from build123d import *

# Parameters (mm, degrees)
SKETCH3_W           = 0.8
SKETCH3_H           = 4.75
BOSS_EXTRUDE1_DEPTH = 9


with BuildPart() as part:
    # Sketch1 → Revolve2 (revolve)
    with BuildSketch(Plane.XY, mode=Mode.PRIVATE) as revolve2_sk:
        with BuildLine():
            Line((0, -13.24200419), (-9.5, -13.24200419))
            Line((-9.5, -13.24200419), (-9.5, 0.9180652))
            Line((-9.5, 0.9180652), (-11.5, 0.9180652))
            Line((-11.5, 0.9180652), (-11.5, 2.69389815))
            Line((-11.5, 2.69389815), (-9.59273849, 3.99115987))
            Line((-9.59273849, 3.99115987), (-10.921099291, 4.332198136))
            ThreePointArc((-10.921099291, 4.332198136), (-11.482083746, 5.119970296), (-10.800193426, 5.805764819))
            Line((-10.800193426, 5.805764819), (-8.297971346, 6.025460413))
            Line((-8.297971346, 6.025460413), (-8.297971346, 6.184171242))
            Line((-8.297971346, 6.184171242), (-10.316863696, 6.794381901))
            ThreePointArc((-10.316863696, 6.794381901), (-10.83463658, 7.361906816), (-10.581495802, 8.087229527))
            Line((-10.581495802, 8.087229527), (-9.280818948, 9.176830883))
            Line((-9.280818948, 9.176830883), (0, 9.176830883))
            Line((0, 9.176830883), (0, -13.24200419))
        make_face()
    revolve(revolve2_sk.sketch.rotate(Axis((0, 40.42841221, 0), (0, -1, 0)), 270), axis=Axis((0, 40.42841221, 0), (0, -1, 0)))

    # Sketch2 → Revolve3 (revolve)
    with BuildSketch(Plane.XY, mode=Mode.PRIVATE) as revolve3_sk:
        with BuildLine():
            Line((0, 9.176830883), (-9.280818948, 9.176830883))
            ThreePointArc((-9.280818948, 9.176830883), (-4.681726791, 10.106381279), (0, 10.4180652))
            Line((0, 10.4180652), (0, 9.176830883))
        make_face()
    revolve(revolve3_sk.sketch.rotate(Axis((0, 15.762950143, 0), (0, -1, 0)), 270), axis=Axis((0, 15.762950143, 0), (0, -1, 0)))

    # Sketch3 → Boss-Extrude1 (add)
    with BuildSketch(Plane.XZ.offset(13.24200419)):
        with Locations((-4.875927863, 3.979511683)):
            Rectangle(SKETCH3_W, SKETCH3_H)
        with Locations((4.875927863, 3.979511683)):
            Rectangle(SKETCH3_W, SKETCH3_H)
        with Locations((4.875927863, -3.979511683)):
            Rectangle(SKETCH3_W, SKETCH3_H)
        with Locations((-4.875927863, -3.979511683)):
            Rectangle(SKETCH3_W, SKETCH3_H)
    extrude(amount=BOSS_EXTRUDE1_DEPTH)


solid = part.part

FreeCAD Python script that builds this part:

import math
import FreeCAD as App
import Part
import Sketcher
Q = App.Units.Quantity

doc = App.newDocument("Part")
body = doc.addObject("PartDesign::Body", "Body")

sketch1 = doc.addObject("Sketcher::SketchObject", "Sketch")
body.addObject(sketch1)
sketch1.AttachmentSupport = (doc.XY_Plane, [""])
sketch1.MapMode = "FlatFace"
sketch1.addGeometry([
    Part.LineSegment(App.Vector(-9.5, -13.242004, 0), App.Vector(0, -13.242004, 0)),
    Part.LineSegment(App.Vector(0, -13.242004, 0), App.Vector(0, 9.176831, 0)),
    Part.LineSegment(App.Vector(0, 9.176831, 0), App.Vector(-9.280819, 9.176831, 0)),
    Part.LineSegment(App.Vector(-9.280819, 9.176831, 0), App.Vector(-10.581496, 8.08723, 0)),
    Part.ArcOfCircle(Part.Circle(App.Vector(-10.099871, 7.512305, 0), App.Vector(0, 0, 1), 0.75), math.radians(129.953539), math.radians(253.182546)),
    Part.LineSegment(App.Vector(-10.316864, 6.794382, 0), App.Vector(-8.297971, 6.184171, 0)),
    Part.LineSegment(App.Vector(-8.297971, 6.184171, 0), App.Vector(-8.297971, 6.02546, 0)),
    Part.LineSegment(App.Vector(-8.297971, 6.02546, 0), App.Vector(-10.800193, 5.805765, 0)),
    Part.ArcOfCircle(Part.Circle(App.Vector(-10.734596, 5.058639, 0), App.Vector(0, 0, 1), 0.75), math.radians(95.017714), math.radians(255.601085)),
    Part.LineSegment(App.Vector(-10.921099, 4.332198, 0), App.Vector(-9.592738, 3.99116, 0)),
    Part.LineSegment(App.Vector(-9.592738, 3.99116, 0), App.Vector(-11.5, 2.693898, 0)),
    Part.LineSegment(App.Vector(-11.5, 2.693898, 0), App.Vector(-11.5, 0.918065, 0)),
    Part.LineSegment(App.Vector(-11.5, 0.918065, 0), App.Vector(-9.5, 0.918065, 0)),
    Part.LineSegment(App.Vector(-9.5, 0.918065, 0), App.Vector(-9.5, -13.242004, 0)),
], False)
sketch1.addConstraint([
    Sketcher.Constraint("Coincident", 0, 2, 1, 1),
    Sketcher.Constraint("Coincident", 1, 2, 2, 1),
    Sketcher.Constraint("Coincident", 2, 2, 3, 1),
    Sketcher.Constraint("Tangent", 3, 2, 4, 1),
    Sketcher.Constraint("Tangent", 4, 2, 5, 1),
    Sketcher.Constraint("Coincident", 5, 2, 6, 1),
    Sketcher.Constraint("Coincident", 6, 2, 7, 1),
    Sketcher.Constraint("Tangent", 7, 2, 8, 1),
    Sketcher.Constraint("Tangent", 8, 2, 9, 1),
    Sketcher.Constraint("Coincident", 9, 2, 10, 1),
    Sketcher.Constraint("Coincident", 10, 2, 11, 1),
    Sketcher.Constraint("Coincident", 11, 2, 12, 1),
    Sketcher.Constraint("Coincident", 12, 2, 13, 1),
    Sketcher.Constraint("Coincident", 13, 2, 0, 1),
    Sketcher.Constraint("Horizontal", 0),
    Sketcher.Constraint("Vertical", 1),
    Sketcher.Constraint("Horizontal", 2),
    Sketcher.Constraint("Vertical", 6),
    Sketcher.Constraint("Vertical", 11),
    Sketcher.Constraint("Horizontal", 12),
    Sketcher.Constraint("Vertical", 13),
    Sketcher.Constraint("Equal", 4, 8),
    Sketcher.Constraint("PointOnObject", 0, 2, -2),
    Sketcher.Constraint("DistanceX", 12, 1, 12, 2, Q("2 mm")),
    Sketcher.Constraint("Radius", 4, Q("0.75 mm")),
    Sketcher.Constraint("DistanceX", 0, 1, 0, 2, Q("9.5 mm")),
    Sketcher.Constraint("DistanceX", 2, 2, 2, 1, Q("9.280819 mm")),
    Sketcher.Constraint("DistanceY", 6, 2, 6, 1, Q("0.158711 mm")),
    Sketcher.Constraint("DistanceY", 13, 2, 13, 1, Q("14.160069 mm")),
    Sketcher.Constraint("DistanceX", 8, 2, -1, 1, Q("10.921099 mm")),
    Sketcher.Constraint("DistanceY", -1, 1, 8, 2, Q("4.332198 mm")),
    Sketcher.Constraint("DistanceY", -1, 1, 10, 2, Q("2.693898 mm")),
    Sketcher.Constraint("DistanceY", 3, 2, 2, 2, Q("1.089601 mm")),
    Sketcher.Constraint("DistanceX", 8, 3, 3, 2, Q("0.1531 mm")),
    Sketcher.Constraint("DistanceX", 4, 3, 5, 2, Q("1.8019 mm")),
    Sketcher.Constraint("DistanceY", 9, 2, 6, 2, Q("2.034301 mm")),
    Sketcher.Constraint("DistanceY", 11, 2, 7, 2, Q("4.8877 mm")),
    Sketcher.Constraint("Distance", 3, Q("1.696759 mm")),
    Sketcher.Constraint("Distance", 7, Q("2.511848 mm")),
    Sketcher.Constraint("DistanceY", 1, 1, 1, 2, Q("22.418835 mm")),
])
revolution = doc.addObject("PartDesign::Revolution", "Revolution")
body.addObject(revolution)
revolution.Profile = sketch1
revolution.ReferenceAxis = (sketch1, ["V_Axis"])
revolution.Angle = 360

sketch2 = doc.addObject("Sketcher::SketchObject", "Sketch001")
body.addObject(sketch2)
sketch2.AttachmentSupport = (doc.XY_Plane, [""])
sketch2.MapMode = "FlatFace"
sketch2.addGeometry([
    Part.LineSegment(App.Vector(-9.280819, 9.176831, 0), App.Vector(0, 9.176831, 0)),
    Part.LineSegment(App.Vector(0, 9.176831, 0), App.Vector(0, 10.418065, 0)),
    Part.ArcOfCircle(Part.Circle(App.Vector(0, -24.899305, 0), App.Vector(0, 0, 1), 35.31737), math.radians(90), math.radians(105.235284)),
], False)
sketch2.addConstraint([
    Sketcher.Constraint("Coincident", 0, 2, 1, 1),
    Sketcher.Constraint("Coincident", 1, 2, 2, 1),
    Sketcher.Constraint("Coincident", 2, 2, 0, 1),
    Sketcher.Constraint("Horizontal", 0),
    Sketcher.Constraint("Vertical", 1),
    Sketcher.Constraint("PointOnObject", 2, 3, -2),
    Sketcher.Constraint("PointOnObject", 0, 2, -2),
    Sketcher.Constraint("Radius", 2, Q("35.31737 mm")),
    Sketcher.Constraint("DistanceX", 0, 1, 0, 2, Q("9.280819 mm")),
    Sketcher.Constraint("DistanceY", -1, 1, 0, 2, Q("9.176831 mm")),
])
revolution2 = doc.addObject("PartDesign::Revolution", "Revolution001")
body.addObject(revolution2)
revolution2.Profile = sketch2
revolution2.ReferenceAxis = (sketch2, ["V_Axis"])
revolution2.Angle = 360

sketch3 = doc.addObject("Sketcher::SketchObject", "Sketch002")
body.addObject(sketch3)
sketch3.AttachmentSupport = (doc.XZ_Plane, [""])
sketch3.MapMode = "FlatFace"
sketch3.AttachmentOffset = App.Placement(App.Vector(0, 0, 13.242004), App.Rotation())
sketch3.addGeometry([
    Part.LineSegment(App.Vector(-5.275928, 6.354512, 0), App.Vector(-5.275928, 1.604512, 0)),
    Part.LineSegment(App.Vector(-5.275928, 1.604512, 0), App.Vector(-4.475928, 1.604512, 0)),
    Part.LineSegment(App.Vector(-4.475928, 1.604512, 0), App.Vector(-4.475928, 6.354512, 0)),
    Part.LineSegment(App.Vector(-4.475928, 6.354512, 0), App.Vector(-5.275928, 6.354512, 0)),
    Part.LineSegment(App.Vector(4.475928, 6.354512, 0), App.Vector(4.475928, 1.604512, 0)),
    Part.LineSegment(App.Vector(4.475928, 1.604512, 0), App.Vector(5.275928, 1.604512, 0)),
    Part.LineSegment(App.Vector(5.275928, 1.604512, 0), App.Vector(5.275928, 6.354512, 0)),
    Part.LineSegment(App.Vector(5.275928, 6.354512, 0), App.Vector(4.475928, 6.354512, 0)),
    Part.LineSegment(App.Vector(4.475928, -1.604512, 0), App.Vector(4.475928, -6.354512, 0)),
    Part.LineSegment(App.Vector(4.475928, -6.354512, 0), App.Vector(5.275928, -6.354512, 0)),
    Part.LineSegment(App.Vector(5.275928, -6.354512, 0), App.Vector(5.275928, -1.604512, 0)),
    Part.LineSegment(App.Vector(5.275928, -1.604512, 0), App.Vector(4.475928, -1.604512, 0)),
    Part.LineSegment(App.Vector(-5.275928, -1.604512, 0), App.Vector(-5.275928, -6.354512, 0)),
    Part.LineSegment(App.Vector(-5.275928, -6.354512, 0), App.Vector(-4.475928, -6.354512, 0)),
    Part.LineSegment(App.Vector(-4.475928, -6.354512, 0), App.Vector(-4.475928, -1.604512, 0)),
    Part.LineSegment(App.Vector(-4.475928, -1.604512, 0), App.Vector(-5.275928, -1.604512, 0)),
], False)
sketch3.addConstraint([
    Sketcher.Constraint("Coincident", 0, 2, 1, 1),
    Sketcher.Constraint("Coincident", 1, 2, 2, 1),
    Sketcher.Constraint("Coincident", 2, 2, 3, 1),
    Sketcher.Constraint("Coincident", 3, 2, 0, 1),
    Sketcher.Constraint("Coincident", 4, 2, 5, 1),
    Sketcher.Constraint("Coincident", 5, 2, 6, 1),
    Sketcher.Constraint("Coincident", 6, 2, 7, 1),
    Sketcher.Constraint("Coincident", 7, 2, 4, 1),
    Sketcher.Constraint("Coincident", 8, 2, 9, 1),
    Sketcher.Constraint("Coincident", 9, 2, 10, 1),
    Sketcher.Constraint("Coincident", 10, 2, 11, 1),
    Sketcher.Constraint("Coincident", 11, 2, 8, 1),
    Sketcher.Constraint("Coincident", 12, 2, 13, 1),
    Sketcher.Constraint("Coincident", 13, 2, 14, 1),
    Sketcher.Constraint("Coincident", 14, 2, 15, 1),
    Sketcher.Constraint("Coincident", 15, 2, 12, 1),
    Sketcher.Constraint("Vertical", 0),
    Sketcher.Constraint("Horizontal", 1),
    Sketcher.Constraint("Vertical", 2),
    Sketcher.Constraint("Horizontal", 3),
    Sketcher.Constraint("Vertical", 4),
    Sketcher.Constraint("Horizontal", 5),
    Sketcher.Constraint("Vertical", 6),
    Sketcher.Constraint("Horizontal", 7),
    Sketcher.Constraint("Vertical", 8),
    Sketcher.Constraint("Horizontal", 9),
    Sketcher.Constraint("Vertical", 10),
    Sketcher.Constraint("Horizontal", 11),
    Sketcher.Constraint("Vertical", 12),
    Sketcher.Constraint("Horizontal", 13),
    Sketcher.Constraint("Vertical", 14),
    Sketcher.Constraint("Horizontal", 15),
    Sketcher.Constraint("Symmetric", 2, 2, 8, 2, -1, 1),
    Sketcher.Constraint("Symmetric", 0, 2, 10, 2, -1, 1),
    Sketcher.Constraint("Symmetric", 6, 2, 12, 2, -1, 1),
    Sketcher.Constraint("Symmetric", 4, 2, 14, 2, -1, 1),
    Sketcher.Constraint("Symmetric", 1, 2, 4, 2, -2),
    Sketcher.Constraint("Symmetric", 3, 2, 6, 2, -2),
    Sketcher.Constraint("DistanceX", 1, 1, 1, 2, Q("0.8 mm")),
    Sketcher.Constraint("DistanceY", 0, 2, 0, 1, Q("4.75 mm")),
    Sketcher.Constraint("DistanceY", -1, 1, 0, 2, Q("1.604512 mm")),
    Sketcher.Constraint("DistanceX", 0, 2, -1, 1, Q("5.275928 mm")),
])
pad1 = doc.addObject("PartDesign::Pad", "Pad")
body.addObject(pad1)
pad1.Profile = sketch3
pad1.Length = 9

doc.recompute()
